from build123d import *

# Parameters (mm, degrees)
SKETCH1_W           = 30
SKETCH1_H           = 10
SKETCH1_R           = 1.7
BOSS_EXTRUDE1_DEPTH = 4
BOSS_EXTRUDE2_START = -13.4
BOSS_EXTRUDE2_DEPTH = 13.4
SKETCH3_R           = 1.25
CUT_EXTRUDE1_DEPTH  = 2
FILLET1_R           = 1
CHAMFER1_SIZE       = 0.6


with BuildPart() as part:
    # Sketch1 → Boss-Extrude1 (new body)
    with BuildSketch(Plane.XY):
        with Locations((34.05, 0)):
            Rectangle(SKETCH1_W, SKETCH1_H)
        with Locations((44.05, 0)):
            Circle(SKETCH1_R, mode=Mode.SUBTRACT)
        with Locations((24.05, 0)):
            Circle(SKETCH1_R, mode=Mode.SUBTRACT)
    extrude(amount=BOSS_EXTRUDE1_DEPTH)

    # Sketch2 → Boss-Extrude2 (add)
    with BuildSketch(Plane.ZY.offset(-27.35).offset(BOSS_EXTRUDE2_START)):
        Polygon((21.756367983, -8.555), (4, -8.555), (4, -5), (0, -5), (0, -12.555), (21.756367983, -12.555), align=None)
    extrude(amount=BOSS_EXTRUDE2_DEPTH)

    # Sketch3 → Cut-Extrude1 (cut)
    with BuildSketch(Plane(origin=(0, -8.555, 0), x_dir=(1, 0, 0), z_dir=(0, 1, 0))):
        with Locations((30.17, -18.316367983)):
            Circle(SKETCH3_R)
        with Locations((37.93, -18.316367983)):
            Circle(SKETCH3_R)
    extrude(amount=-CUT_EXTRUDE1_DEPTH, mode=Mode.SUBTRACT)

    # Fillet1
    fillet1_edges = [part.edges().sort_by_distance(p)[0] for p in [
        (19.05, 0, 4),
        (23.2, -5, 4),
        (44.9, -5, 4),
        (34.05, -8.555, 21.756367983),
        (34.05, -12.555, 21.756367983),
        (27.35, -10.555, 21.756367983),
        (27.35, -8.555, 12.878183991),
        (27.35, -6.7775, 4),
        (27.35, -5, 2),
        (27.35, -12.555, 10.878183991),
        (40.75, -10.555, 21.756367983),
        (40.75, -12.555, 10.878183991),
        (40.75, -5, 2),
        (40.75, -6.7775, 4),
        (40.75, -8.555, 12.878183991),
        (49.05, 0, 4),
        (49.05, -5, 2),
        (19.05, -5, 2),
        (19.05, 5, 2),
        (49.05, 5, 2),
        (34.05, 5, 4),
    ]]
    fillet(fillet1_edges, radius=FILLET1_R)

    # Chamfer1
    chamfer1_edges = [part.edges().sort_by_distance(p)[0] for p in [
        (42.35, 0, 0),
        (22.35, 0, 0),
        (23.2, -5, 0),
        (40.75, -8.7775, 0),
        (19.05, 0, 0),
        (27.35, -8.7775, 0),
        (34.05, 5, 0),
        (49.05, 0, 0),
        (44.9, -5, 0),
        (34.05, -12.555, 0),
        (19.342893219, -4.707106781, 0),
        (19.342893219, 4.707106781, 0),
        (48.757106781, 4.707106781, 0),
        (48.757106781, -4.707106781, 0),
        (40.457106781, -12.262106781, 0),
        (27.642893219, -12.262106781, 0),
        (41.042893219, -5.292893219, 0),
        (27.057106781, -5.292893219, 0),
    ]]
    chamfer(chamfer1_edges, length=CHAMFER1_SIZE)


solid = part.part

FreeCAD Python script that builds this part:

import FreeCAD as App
import Part
import Sketcher
Q = App.Units.Quantity


def edges_at(feature, points):
    """Names of the edges that pass closest to the given points."""
    edges = feature.Shape.Edges
    near = lambda p: min(range(len(edges)), key=lambda i: edges[i].distToShape(Part.Vertex(*p))[0])
    return sorted({f"Edge{near(p) + 1}" for p in points})

doc = App.newDocument("Part")
body = doc.addObject("PartDesign::Body", "Body")

# Sketch on XY plane
sketch1 = doc.addObject("Sketcher::SketchObject", "Sketch")
body.addObject(sketch1)
sketch1.AttachmentSupport = (doc.XY_Plane, [""])
sketch1.MapMode = "FlatFace"
sketch1.addGeometry([
    Part.LineSegment(App.Vector(19.1, 5, 0), App.Vector(19.1, -5, 0)),  # 0
    Part.LineSegment(App.Vector(19.1, -5, 0), App.Vector(49, -5, 0)),  # 1
    Part.LineSegment(App.Vector(49, -5, 0), App.Vector(49, 5, 0)),  # 2
    Part.LineSegment(App.Vector(49, 5, 0), App.Vector(19.1, 5, 0)),  # 3
    Part.Circle(App.Vector(24.1, 0, 0), App.Vector(0, 0, 1), 1.7),  # 4
    Part.Circle(App.Vector(44, 0, 0), App.Vector(0, 0, 1), 1.7),  # 5
], False)
sketch1.addConstraint([
    Sketcher.Constraint("Coincident", 0, 2, 1, 1),
    Sketcher.Constraint("Coincident", 1, 2, 2, 1),
    Sketcher.Constraint("Coincident", 2, 2, 3, 1),
    Sketcher.Constraint("Coincident", 3, 2, 0, 1),
    Sketcher.Constraint("Vertical", 0),
    Sketcher.Constraint("Horizontal", 1),
    Sketcher.Constraint("Vertical", 2),
    Sketcher.Constraint("Horizontal", 3),
    Sketcher.Constraint("Equal", 4, 5),
    Sketcher.Constraint("PointOnObject", 4, 3, -1),
    Sketcher.Constraint("PointOnObject", 5, 3, -1),
    Sketcher.Constraint("Diameter", 4, Q("3.4 mm")),
    Sketcher.Constraint("DistanceX", 1, 1, 1, 2, Q("30 mm")),
    Sketcher.Constraint("DistanceY", 0, 2, 0, 1, Q("10 mm")),
    Sketcher.Constraint("DistanceY", 0, 2, -1, 1, Q("5 mm")),
    Sketcher.Constraint("DistanceX", 4, 3, 5, 3, Q("20 mm")),
    Sketcher.Constraint("DistanceX", 0, 2, 4, 3, Q("5 mm")),
    Sketcher.Constraint("DistanceX", -1, 1, 4, 3, Q("24.05 mm")),
])
pad1 = doc.addObject("PartDesign::Pad", "Pad")
body.addObject(pad1)
pad1.Profile = sketch1
pad1.Length = 4

# Sketch on YZ plane
sketch2 = doc.addObject("Sketcher::SketchObject", "Sketch001")
body.addObject(sketch2)
sketch2.AttachmentSupport = (doc.YZ_Plane, [""])
sketch2.MapMode = "FlatFace"
sketch2.AttachmentOffset = App.Placement(App.Vector(0, 0, 40.75), App.Rotation())
sketch2.addGeometry([
    Part.LineSegment(App.Vector(-8.6, 21.8, 0), App.Vector(-8.6, 4, 0)),  # 0
    Part.LineSegment(App.Vector(-8.6, 4, 0), App.Vector(-5, 4, 0)),  # 1
    Part.LineSegment(App.Vector(-5, 4, 0), App.Vector(-5, 0, 0)),  # 2
    Part.LineSegment(App.Vector(-5, 0, 0), App.Vector(-12.6, 0, 0)),  # 3
    Part.LineSegment(App.Vector(-12.6, 0, 0), App.Vector(-12.6, 21.8, 0)),  # 4
    Part.LineSegment(App.Vector(-12.6, 21.8, 0), App.Vector(-8.6, 21.8, 0)),  # 5
], False)
sketch2.addConstraint([
    Sketcher.Constraint("Coincident", 0, 2, 1, 1),
    Sketcher.Constraint("Coincident", 1, 2, 2, 1),
    Sketcher.Constraint("Coincident", 2, 2, 3, 1),
    Sketcher.Constraint("Coincident", 3, 2, 4, 1),
    Sketcher.Constraint("Coincident", 4, 2, 5, 1),
    Sketcher.Constraint("Coincident", 5, 2, 0, 1),
    Sketcher.Constraint("Vertical", 0),
    Sketcher.Constraint("Horizontal", 1),
    Sketcher.Constraint("Vertical", 2),
    Sketcher.Constraint("Horizontal", 3),
    Sketcher.Constraint("Vertical", 4),
    Sketcher.Constraint("Horizontal", 5),
    Sketcher.Constraint("PointOnObject", 2, 2, -1),
    Sketcher.Constraint("Equal", 5, 2),
    Sketcher.Constraint("DistanceX", 5, 1, 5, 2, Q("4 mm")),
    Sketcher.Constraint("DistanceX", 1, 2, -1, 1, Q("5 mm")),
    Sketcher.Constraint("DistanceX", 1, 1, 1, 2, Q("3.555 mm")),
    Sketcher.Constraint("DistanceY", 0, 2, 0, 1, Q("17.756368 mm")),
])
pad2 = doc.addObject("PartDesign::Pad", "Pad001")
body.addObject(pad2)
pad2.Profile = sketch2
pad2.Length = 13.4
pad2.Reversed = True

# Sketch on XZ plane
sketch3 = doc.addObject("Sketcher::SketchObject", "Sketch002")
body.addObject(sketch3)
sketch3.AttachmentSupport = (doc.XZ_Plane, [""])
sketch3.MapMode = "FlatFace"
sketch3.AttachmentOffset = App.Placement(App.Vector(0, 0, 8.555), App.Rotation())
sketch3.addGeometry([
    Part.Circle(App.Vector(30.2, 18.3, 0), App.Vector(0, 0, 1), 1.2),
    Part.Circle(App.Vector(37.9, 18.3, 0), App.Vector(0, 0, 1), 1.2),
], False)
sketch3.addConstraint([
    Sketcher.Constraint("Equal", 0, 1),
    Sketcher.Constraint("Horizontal", 0, 3, 1, 3),
    Sketcher.Constraint("Diameter", 0, Q("2.5 mm")),
    Sketcher.Constraint("DistanceX", -1, 1, 0, 3, Q("30.17 mm")),
    Sketcher.Constraint("DistanceX", -1, 1, 1, 3, Q("37.93 mm")),
    Sketcher.Constraint("DistanceY", -1, 1, 0, 3, Q("18.316368 mm")),
])
pocket1 = doc.addObject("PartDesign::Pocket", "Pocket")
body.addObject(pocket1)
pocket1.Profile = sketch3
pocket1.Length = 2
pocket1.Reversed = True
doc.recompute()

fillet = doc.addObject("PartDesign::Fillet", "Fillet")
body.addObject(fillet)
fillet.Base = (pocket1, edges_at(pocket1, [
    (19.05, 0, 4),
    (23.2, -5, 4),
    (44.9, -5, 4),
    (34.05, -8.555, 21.756),
    (34.05, -12.555, 21.756),
    (27.35, -10.555, 21.756),
    (27.35, -8.555, 12.878),
    (27.35, -6.777, 4),
    (27.35, -5, 2),
    (27.35, -12.555, 10.878),
    (40.75, -10.555, 21.756),
    (40.75, -12.555, 10.878),
    (40.75, -5, 2),
    (40.75, -6.777, 4),
    (40.75, -8.555, 12.878),
    (49.05, 0, 4),
    (49.05, -5, 2),
    (19.05, -5, 2),
    (19.05, 5, 2),
    (49.05, 5, 2),
    (34.05, 5, 4),
]))
fillet.Radius = 1
doc.recompute()

chamfer = doc.addObject("PartDesign::Chamfer", "Chamfer")
body.addObject(chamfer)
chamfer.Base = (fillet, edges_at(fillet, [
    (42.35, 0, 0),
    (22.35, 0, 0),
    (23.2, -5, 0),
    (40.75, -8.777, 0),
    (19.05, 0, 0),
    (27.35, -8.777, 0),
    (34.05, 5, 0),
    (49.05, 0, 0),
    (44.9, -5, 0),
    (34.05, -12.555, 0),
    (19.343, -4.707, 0),
    (19.343, 4.707, 0),
    (48.757, 4.707, 0),
    (48.757, -4.707, 0),
    (40.457, -12.262, 0),
    (27.643, -12.262, 0),
    (41.043, -5.293, 0),
    (27.057, -5.293, 0),
]))
chamfer.Size = 0.6

doc.recompute()
